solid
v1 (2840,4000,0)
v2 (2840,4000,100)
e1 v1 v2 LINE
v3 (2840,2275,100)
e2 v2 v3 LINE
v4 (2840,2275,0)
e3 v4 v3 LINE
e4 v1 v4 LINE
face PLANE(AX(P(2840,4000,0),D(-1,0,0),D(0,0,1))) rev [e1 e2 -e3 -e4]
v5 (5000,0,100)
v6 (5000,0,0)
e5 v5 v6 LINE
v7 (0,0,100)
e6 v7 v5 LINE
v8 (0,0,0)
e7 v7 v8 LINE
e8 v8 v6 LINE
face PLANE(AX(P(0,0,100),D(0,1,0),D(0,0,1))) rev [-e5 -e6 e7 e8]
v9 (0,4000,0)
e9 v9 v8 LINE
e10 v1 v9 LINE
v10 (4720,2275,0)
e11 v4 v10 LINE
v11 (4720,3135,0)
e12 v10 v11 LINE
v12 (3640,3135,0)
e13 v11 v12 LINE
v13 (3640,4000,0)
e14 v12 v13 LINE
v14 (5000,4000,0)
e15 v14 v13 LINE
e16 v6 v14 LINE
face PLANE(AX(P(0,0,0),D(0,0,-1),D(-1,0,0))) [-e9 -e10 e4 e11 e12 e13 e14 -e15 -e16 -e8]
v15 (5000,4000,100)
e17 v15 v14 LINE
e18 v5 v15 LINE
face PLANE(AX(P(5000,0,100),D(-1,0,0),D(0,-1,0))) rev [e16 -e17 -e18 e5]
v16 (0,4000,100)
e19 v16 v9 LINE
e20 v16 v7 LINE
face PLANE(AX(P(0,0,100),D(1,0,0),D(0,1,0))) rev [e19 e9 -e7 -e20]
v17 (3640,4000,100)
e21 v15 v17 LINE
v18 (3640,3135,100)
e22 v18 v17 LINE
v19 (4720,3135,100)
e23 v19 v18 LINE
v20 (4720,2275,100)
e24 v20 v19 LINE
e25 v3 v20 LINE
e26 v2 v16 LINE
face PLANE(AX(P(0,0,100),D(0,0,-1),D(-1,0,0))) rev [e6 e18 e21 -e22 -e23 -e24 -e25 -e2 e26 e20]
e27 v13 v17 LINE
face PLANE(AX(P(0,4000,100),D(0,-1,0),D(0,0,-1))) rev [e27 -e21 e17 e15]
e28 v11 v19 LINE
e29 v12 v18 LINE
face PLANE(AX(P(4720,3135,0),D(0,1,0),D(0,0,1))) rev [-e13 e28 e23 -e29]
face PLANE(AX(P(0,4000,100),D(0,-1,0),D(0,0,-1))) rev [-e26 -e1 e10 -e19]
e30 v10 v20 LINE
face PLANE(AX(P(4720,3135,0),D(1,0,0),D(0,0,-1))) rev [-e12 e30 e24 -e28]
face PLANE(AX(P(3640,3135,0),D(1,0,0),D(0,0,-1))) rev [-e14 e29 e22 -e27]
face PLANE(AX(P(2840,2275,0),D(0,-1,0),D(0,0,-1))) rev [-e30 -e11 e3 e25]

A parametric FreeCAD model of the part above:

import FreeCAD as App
import Part
import Sketcher
Q = App.Units.Quantity

doc = App.newDocument("Part")
body = doc.addObject("PartDesign::Body", "Body")

sketch1 = body.newObject("Sketcher::SketchObject", "Sketch")
sketch1.AttachmentSupport = (doc.getObject("XY_Plane"), [""])
sketch1.MapMode = "FlatFace"
sketch1.addGeometry(Part.LineSegment(App.Vector(0, 4000, 0), App.Vector(0, 0, 0)), False)
sketch1.addGeometry(Part.LineSegment(App.Vector(0, 0, 0), App.Vector(5000, 0, 0)), False)
sketch1.addGeometry(Part.LineSegment(App.Vector(5000, 0, 0), App.Vector(5000, 4000, 0)), False)
sketch1.addGeometry(Part.LineSegment(App.Vector(5000, 4000, 0), App.Vector(0, 4000, 0)), False)
sketch1.addConstraint(Sketcher.Constraint("Coincident", 0, 2, 1, 1))
sketch1.addConstraint(Sketcher.Constraint("Coincident", 1, 2, 2, 1))
sketch1.addConstraint(Sketcher.Constraint("Coincident", 2, 2, 3, 1))
sketch1.addConstraint(Sketcher.Constraint("Coincident", 3, 2, 0, 1))
sketch1.addConstraint(Sketcher.Constraint("Vertical", 0))
sketch1.addConstraint(Sketcher.Constraint("Horizontal", 1))
sketch1.addConstraint(Sketcher.Constraint("Vertical", 2))
sketch1.addConstraint(Sketcher.Constraint("Horizontal", 3))
sketch1.addConstraint(Sketcher.Constraint("Coincident", 0, 2, -1, 1))
sketch1.addConstraint(Sketcher.Constraint("DistanceX", 1, 1, 1, 2, Q("5000 mm")))
sketch1.addConstraint(Sketcher.Constraint("DistanceY", 0, 2, 0, 1, Q("4000 mm")))
pad1 = body.newObject("PartDesign::Pad", "Pad")
pad1.Profile = sketch1
pad1.Length = 100

sketch2 = body.newObject("Sketcher::SketchObject", "Sketch001")
sketch2.AttachmentSupport = (doc.getObject("XY_Plane"), [""])
sketch2.MapMode = "FlatFace"
sketch2.AttachmentOffset = App.Placement(App.Vector(0, 0, 100), App.Rotation())
sketch2.addGeometry(Part.LineSegment(App.Vector(4720, 2275, 0), App.Vector(4720, 3135, 0)), False)
sketch2.addGeometry(Part.LineSegment(App.Vector(4720, 3135, 0), App.Vector(3640, 3135, 0)), False)
sketch2.addGeometry(Part.LineSegment(App.Vector(3640, 3135, 0), App.Vector(3640, 4000, 0)), False)
sketch2.addGeometry(Part.LineSegment(App.Vector(3640, 4000, 0), App.Vector(2840, 4000, 0)), False)
sketch2.addGeometry(Part.LineSegment(App.Vector(2840, 4000, 0), App.Vector(2840, 2275, 0)), False)
sketch2.addGeometry(Part.LineSegment(App.Vector(2840, 2275, 0), App.Vector(4720, 2275, 0)), False)
sketch2.addConstraint(Sketcher.Constraint("Coincident", 0, 2, 1, 1))
sketch2.addConstraint(Sketcher.Constraint("Coincident", 1, 2, 2, 1))
sketch2.addConstraint(Sketcher.Constraint("Coincident", 2, 2, 3, 1))
sketch2.addConstraint(Sketcher.Constraint("Coincident", 3, 2, 4, 1))
sketch2.addConstraint(Sketcher.Constraint("Coincident", 4, 2, 5, 1))
sketch2.addConstraint(Sketcher.Constraint("Coincident", 5, 2, 0, 1))
sketch2.addConstraint(Sketcher.Constraint("Vertical", 0))
sketch2.addConstraint(Sketcher.Constraint("Horizontal", 1))
sketch2.addConstraint(Sketcher.Constraint("Vertical", 2))
sketch2.addConstraint(Sketcher.Constraint("Horizontal", 3))
sketch2.addConstraint(Sketcher.Constraint("Vertical", 4))
sketch2.addConstraint(Sketcher.Constraint("Horizontal", 5))
sketch2.addConstraint(Sketcher.Constraint("DistanceX", 1, 2, 1, 1, Q("1080 mm")))
sketch2.addConstraint(Sketcher.Constraint("DistanceX", 3, 2, 3, 1, Q("800 mm")))
sketch2.addConstraint(Sketcher.Constraint("DistanceY", 0, 1, 0, 2, Q("860 mm")))
sketch2.addConstraint(Sketcher.Constraint("DistanceY", 2, 1, 2, 2, Q("865 mm")))
sketch2.addConstraint(Sketcher.Constraint("DistanceX", -1, 1, 0, 2, Q("4720 mm")))
sketch2.addConstraint(Sketcher.Constraint("DistanceY", -1, 1, 0, 2, Q("3135 mm")))
pocket1 = body.newObject("PartDesign::Pocket", "Pocket")
pocket1.Profile = sketch2
pocket1.Length = 100

doc.recompute()
